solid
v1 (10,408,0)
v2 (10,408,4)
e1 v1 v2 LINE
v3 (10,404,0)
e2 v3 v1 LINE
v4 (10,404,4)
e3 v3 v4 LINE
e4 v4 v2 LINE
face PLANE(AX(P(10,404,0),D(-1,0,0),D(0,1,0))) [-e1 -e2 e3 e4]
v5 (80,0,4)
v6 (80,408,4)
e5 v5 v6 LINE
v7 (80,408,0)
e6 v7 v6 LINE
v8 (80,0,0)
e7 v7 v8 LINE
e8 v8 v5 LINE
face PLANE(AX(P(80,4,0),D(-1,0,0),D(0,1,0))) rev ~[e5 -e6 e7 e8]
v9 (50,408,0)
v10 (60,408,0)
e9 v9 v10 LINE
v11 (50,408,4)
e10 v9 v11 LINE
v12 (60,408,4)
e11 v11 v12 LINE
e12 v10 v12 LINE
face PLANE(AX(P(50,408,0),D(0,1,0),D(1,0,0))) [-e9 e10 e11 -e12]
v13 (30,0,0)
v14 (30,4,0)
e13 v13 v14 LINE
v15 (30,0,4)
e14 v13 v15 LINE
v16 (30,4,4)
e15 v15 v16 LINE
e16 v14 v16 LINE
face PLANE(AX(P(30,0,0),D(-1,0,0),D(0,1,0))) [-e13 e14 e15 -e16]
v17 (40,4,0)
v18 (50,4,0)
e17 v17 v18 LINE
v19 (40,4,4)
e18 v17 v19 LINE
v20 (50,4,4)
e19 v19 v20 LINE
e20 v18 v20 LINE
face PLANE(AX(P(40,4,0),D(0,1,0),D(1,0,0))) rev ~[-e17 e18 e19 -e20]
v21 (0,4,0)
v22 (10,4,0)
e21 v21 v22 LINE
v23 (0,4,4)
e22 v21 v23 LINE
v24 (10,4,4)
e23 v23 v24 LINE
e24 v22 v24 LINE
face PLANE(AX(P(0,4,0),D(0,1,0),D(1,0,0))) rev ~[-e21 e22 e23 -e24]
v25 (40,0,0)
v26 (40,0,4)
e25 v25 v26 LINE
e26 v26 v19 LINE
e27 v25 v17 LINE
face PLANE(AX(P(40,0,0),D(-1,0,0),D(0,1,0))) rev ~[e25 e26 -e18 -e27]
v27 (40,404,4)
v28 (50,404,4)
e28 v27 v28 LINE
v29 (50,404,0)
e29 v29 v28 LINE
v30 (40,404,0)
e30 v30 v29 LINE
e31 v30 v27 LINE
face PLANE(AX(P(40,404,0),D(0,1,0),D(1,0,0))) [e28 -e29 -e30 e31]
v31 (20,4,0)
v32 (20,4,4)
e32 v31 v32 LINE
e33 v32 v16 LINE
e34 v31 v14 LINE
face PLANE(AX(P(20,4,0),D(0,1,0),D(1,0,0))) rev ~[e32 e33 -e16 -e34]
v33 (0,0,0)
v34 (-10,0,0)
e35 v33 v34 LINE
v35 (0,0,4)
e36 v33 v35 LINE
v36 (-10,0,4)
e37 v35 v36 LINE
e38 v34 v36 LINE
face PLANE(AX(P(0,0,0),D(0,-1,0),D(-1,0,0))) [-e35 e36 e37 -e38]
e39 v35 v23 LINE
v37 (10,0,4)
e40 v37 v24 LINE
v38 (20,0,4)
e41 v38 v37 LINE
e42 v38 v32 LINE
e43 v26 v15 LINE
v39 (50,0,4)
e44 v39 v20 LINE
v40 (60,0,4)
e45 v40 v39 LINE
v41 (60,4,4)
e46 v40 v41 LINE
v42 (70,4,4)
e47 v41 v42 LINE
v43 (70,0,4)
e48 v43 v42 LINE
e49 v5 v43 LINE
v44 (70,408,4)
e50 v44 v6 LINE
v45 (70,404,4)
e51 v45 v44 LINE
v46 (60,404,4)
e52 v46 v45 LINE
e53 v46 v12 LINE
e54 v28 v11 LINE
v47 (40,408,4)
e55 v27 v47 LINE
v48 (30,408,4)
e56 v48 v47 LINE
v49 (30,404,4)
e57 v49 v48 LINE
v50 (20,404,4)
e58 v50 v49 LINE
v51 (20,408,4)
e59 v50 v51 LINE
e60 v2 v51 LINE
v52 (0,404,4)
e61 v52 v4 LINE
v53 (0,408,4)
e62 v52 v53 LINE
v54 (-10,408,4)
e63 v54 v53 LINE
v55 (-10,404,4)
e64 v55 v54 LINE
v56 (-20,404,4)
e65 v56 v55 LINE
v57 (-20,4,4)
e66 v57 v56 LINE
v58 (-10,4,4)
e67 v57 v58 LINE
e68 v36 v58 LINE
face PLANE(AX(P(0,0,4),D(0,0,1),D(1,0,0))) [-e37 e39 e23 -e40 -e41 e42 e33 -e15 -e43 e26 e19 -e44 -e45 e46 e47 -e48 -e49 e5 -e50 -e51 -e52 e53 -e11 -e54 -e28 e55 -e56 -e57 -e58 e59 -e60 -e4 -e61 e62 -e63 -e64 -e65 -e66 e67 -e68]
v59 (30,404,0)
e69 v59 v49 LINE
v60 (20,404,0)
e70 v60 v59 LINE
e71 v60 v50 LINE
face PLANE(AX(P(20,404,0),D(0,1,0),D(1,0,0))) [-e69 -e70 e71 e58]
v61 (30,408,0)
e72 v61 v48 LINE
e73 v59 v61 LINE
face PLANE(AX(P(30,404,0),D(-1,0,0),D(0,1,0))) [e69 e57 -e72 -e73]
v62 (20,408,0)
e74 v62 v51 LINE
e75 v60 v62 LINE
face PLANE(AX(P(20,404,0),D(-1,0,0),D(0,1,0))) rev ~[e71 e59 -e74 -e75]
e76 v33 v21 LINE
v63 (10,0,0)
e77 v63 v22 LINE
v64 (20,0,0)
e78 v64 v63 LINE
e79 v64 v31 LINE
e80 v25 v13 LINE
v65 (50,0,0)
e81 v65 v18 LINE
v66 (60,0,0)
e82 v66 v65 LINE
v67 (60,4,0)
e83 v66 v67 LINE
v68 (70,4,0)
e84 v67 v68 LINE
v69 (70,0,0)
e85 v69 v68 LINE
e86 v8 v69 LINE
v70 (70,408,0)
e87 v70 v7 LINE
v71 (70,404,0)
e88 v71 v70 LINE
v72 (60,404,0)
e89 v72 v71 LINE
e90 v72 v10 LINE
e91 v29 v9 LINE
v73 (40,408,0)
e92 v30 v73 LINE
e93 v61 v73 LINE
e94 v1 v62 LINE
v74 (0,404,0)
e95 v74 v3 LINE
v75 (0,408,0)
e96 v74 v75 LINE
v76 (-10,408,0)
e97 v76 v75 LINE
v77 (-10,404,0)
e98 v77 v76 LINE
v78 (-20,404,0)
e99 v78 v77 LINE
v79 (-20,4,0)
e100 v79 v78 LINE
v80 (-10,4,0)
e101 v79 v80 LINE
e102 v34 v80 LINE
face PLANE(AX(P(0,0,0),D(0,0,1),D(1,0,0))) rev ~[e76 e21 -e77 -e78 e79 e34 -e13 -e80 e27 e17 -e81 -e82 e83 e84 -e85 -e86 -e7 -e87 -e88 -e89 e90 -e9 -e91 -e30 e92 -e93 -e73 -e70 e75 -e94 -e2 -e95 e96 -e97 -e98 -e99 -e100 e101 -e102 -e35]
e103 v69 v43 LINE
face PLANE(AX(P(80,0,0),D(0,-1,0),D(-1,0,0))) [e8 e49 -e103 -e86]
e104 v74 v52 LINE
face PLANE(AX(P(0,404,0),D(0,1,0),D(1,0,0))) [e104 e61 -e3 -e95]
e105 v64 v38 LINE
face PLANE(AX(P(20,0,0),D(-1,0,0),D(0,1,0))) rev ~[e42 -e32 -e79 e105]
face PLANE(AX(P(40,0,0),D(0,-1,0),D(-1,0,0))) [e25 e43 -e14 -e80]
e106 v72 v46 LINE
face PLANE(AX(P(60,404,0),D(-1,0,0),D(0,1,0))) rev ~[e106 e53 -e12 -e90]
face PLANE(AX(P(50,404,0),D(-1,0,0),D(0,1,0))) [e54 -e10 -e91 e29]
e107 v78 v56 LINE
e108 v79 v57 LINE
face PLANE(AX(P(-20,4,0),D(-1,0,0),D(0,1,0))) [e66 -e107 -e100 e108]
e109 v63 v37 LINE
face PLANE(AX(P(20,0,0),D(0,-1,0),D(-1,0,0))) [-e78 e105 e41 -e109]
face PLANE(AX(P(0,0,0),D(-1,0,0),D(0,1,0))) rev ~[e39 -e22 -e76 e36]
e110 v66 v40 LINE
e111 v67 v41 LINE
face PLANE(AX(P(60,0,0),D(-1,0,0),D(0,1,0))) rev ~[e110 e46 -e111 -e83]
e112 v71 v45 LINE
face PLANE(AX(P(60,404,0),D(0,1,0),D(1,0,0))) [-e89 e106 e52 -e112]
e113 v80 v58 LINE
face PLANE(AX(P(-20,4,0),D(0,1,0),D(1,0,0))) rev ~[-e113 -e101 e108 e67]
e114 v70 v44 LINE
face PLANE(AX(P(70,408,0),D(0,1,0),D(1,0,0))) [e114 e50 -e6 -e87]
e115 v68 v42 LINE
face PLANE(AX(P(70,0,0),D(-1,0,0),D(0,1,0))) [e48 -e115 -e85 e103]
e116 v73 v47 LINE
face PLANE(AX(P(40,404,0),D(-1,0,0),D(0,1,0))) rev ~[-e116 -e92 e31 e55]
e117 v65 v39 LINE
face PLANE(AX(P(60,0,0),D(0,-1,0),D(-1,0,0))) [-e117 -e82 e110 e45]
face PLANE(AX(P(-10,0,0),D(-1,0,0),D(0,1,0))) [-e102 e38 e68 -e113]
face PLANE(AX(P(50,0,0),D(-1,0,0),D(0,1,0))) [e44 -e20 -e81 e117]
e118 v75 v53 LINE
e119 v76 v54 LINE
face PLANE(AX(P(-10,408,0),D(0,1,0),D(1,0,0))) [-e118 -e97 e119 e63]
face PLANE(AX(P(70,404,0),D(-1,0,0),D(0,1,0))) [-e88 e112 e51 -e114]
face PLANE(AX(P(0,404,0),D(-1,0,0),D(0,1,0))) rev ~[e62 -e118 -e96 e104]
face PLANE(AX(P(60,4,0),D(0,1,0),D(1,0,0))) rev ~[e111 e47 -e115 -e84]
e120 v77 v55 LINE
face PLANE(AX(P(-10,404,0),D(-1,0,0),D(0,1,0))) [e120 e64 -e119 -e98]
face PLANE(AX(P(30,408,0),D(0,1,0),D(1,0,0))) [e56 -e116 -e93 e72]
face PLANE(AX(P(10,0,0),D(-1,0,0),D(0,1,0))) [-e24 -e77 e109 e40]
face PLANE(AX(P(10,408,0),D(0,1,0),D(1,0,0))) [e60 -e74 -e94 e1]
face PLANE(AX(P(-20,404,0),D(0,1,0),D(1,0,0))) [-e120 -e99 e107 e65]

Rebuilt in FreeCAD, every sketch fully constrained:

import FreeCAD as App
import Part
import Sketcher

V = App.Vector


def add_polygon(sketch, points):
    """Adds a closed chain of lines whose ends are joined by coincident constraints."""
    first, n = sketch.GeometryCount, len(points)
    for a, b in zip(points, points[1:] + points[:1]):
        sketch.addGeometry(Part.LineSegment(App.Vector(*a, 0), App.Vector(*b, 0)), False)
    for i in range(n):
        sketch.addConstraint(Sketcher.Constraint("Coincident", first + i, 2, first + (i + 1) % n, 1))

doc = App.newDocument("Part")
body = doc.addObject("PartDesign::Body", "Body")

sketch1 = body.newObject("Sketcher::SketchObject", "Sketch")
sketch1.AttachmentSupport = (doc.getObject("XY_Plane"), [""])
sketch1.MapMode = "FlatFace"
add_polygon(sketch1, [(-10, 0), (0, 0), (0, 4), (10, 4), (10, 0), (20, 0), (20, 4), (30, 4), (30, 0), (40, 0), (40, 4), (50, 4), (50, 0), (60, 0), (60, 4), (70, 4), (70, 0), (80, 0), (80, 408), (70, 408), (70, 404), (60, 404), (60, 408), (50, 408), (50, 404), (40, 404), (40, 408), (30, 408), (30, 404), (20, 404), (20, 408), (10, 408), (10, 404), (0, 404), (0, 408), (-10, 408), (-10, 404), (-20, 404), (-20, 4), (-10, 4)])
sketch1.addConstraint([
    Sketcher.Constraint("Horizontal", 0),
    Sketcher.Constraint("Vertical", 1),
    Sketcher.Constraint("Horizontal", 2),
    Sketcher.Constraint("Vertical", 3),
    Sketcher.Constraint("Horizontal", 4),
    Sketcher.Constraint("Vertical", 5),
    Sketcher.Constraint("Horizontal", 6),
    Sketcher.Constraint("Vertical", 7),
    Sketcher.Constraint("Horizontal", 8),
    Sketcher.Constraint("Vertical", 9),
    Sketcher.Constraint("Horizontal", 10),
    Sketcher.Constraint("Vertical", 11),
    Sketcher.Constraint("Horizontal", 12),
    Sketcher.Constraint("Vertical", 13),
    Sketcher.Constraint("Horizontal", 14),
    Sketcher.Constraint("Vertical", 15),
    Sketcher.Constraint("Horizontal", 16),
    Sketcher.Constraint("Vertical", 17),
    Sketcher.Constraint("Horizontal", 18),
    Sketcher.Constraint("Vertical", 19),
    Sketcher.Constraint("Horizontal", 20),
    Sketcher.Constraint("Vertical", 21),
    Sketcher.Constraint("Horizontal", 22),
    Sketcher.Constraint("Vertical", 23),
    Sketcher.Constraint("Horizontal", 24),
    Sketcher.Constraint("Vertical", 25),
    Sketcher.Constraint("Horizontal", 26),
    Sketcher.Constraint("Vertical", 27),
    Sketcher.Constraint("Horizontal", 28),
    Sketcher.Constraint("Vertical", 29),
    Sketcher.Constraint("Horizontal", 30),
    Sketcher.Constraint("Vertical", 31),
    Sketcher.Constraint("Horizontal", 32),
    Sketcher.Constraint("Vertical", 33),
    Sketcher.Constraint("Horizontal", 34),
    Sketcher.Constraint("Vertical", 35),
    Sketcher.Constraint("Horizontal", 36),
    Sketcher.Constraint("Vertical", 37),
    Sketcher.Constraint("Horizontal", 38),
    Sketcher.Constraint("Vertical", 39),
    Sketcher.Constraint("Coincident", 0, 2, -1, 1),
    Sketcher.Constraint("Symmetric", 3, 2, 39, 2, -1, 1),
    Sketcher.Constraint("Symmetric", 30, 2, 34, 2, -2),
    Sketcher.Constraint("Symmetric", 28, 2, 36, 2, -2),
    Sketcher.Constraint("Symmetric", 5, 2, 37, 2, -2),
    Sketcher.Constraint("PointOnObject", 7, 2, -1),
    Sketcher.Constraint("PointOnObject", 11, 2, -1),
    Sketcher.Constraint("PointOnObject", 15, 2, -1),
    Sketcher.Constraint("PointOnObject", 32, 2, -2),
    Sketcher.Constraint("Horizontal", 2, 2, 5, 2),
    Sketcher.Constraint("Horizontal", 6, 2, 9, 2),
    Sketcher.Constraint("Horizontal", 10, 2, 13, 2),
    Sketcher.Constraint("Horizontal", 18, 2, 21, 2),
    Sketcher.Constraint("Horizontal", 20, 2, 23, 2),
    Sketcher.Constraint("Horizontal", 22, 2, 25, 2),
    Sketcher.Constraint("Horizontal", 24, 2, 27, 2),
    Sketcher.Constraint("Horizontal", 26, 2, 29, 2),
    Sketcher.Constraint("Horizontal", 28, 2, 31, 2),
    Sketcher.Constraint("Vertical", 15, 2, 18, 2),
    Sketcher.Constraint("Vertical", 13, 2, 20, 2),
    Sketcher.Constraint("Vertical", 11, 2, 22, 2),
    Sketcher.Constraint("Vertical", 9, 2, 24, 2),
    Sketcher.Constraint("Vertical", 7, 2, 26, 2),
    Sketcher.Constraint("Vertical", 3, 2, 30, 2),
    Sketcher.Constraint("Equal", 2, 4),
    Sketcher.Constraint("Equal", 4, 6),
    Sketcher.Constraint("Equal", 6, 8),
    Sketcher.Constraint("Equal", 8, 10),
    Sketcher.Constraint("Equal", 10, 12),
    Sketcher.Constraint("Equal", 12, 14),
    Sketcher.Constraint("Equal", 14, 16),
    Sketcher.Constraint("Equal", 15, 19),
    Sketcher.Constraint("DistanceX", 0, 1, 0, 2, 10.0),
    Sketcher.Constraint("DistanceY", 1, 1, 1, 2, 4.0),
    Sketcher.Constraint("DistanceY", 17, 1, 17, 2, 408.0),
])
pad1 = body.newObject("PartDesign::Pad", "Pad")
pad1.Profile = sketch1
pad1.Length = 4

doc.recompute()
